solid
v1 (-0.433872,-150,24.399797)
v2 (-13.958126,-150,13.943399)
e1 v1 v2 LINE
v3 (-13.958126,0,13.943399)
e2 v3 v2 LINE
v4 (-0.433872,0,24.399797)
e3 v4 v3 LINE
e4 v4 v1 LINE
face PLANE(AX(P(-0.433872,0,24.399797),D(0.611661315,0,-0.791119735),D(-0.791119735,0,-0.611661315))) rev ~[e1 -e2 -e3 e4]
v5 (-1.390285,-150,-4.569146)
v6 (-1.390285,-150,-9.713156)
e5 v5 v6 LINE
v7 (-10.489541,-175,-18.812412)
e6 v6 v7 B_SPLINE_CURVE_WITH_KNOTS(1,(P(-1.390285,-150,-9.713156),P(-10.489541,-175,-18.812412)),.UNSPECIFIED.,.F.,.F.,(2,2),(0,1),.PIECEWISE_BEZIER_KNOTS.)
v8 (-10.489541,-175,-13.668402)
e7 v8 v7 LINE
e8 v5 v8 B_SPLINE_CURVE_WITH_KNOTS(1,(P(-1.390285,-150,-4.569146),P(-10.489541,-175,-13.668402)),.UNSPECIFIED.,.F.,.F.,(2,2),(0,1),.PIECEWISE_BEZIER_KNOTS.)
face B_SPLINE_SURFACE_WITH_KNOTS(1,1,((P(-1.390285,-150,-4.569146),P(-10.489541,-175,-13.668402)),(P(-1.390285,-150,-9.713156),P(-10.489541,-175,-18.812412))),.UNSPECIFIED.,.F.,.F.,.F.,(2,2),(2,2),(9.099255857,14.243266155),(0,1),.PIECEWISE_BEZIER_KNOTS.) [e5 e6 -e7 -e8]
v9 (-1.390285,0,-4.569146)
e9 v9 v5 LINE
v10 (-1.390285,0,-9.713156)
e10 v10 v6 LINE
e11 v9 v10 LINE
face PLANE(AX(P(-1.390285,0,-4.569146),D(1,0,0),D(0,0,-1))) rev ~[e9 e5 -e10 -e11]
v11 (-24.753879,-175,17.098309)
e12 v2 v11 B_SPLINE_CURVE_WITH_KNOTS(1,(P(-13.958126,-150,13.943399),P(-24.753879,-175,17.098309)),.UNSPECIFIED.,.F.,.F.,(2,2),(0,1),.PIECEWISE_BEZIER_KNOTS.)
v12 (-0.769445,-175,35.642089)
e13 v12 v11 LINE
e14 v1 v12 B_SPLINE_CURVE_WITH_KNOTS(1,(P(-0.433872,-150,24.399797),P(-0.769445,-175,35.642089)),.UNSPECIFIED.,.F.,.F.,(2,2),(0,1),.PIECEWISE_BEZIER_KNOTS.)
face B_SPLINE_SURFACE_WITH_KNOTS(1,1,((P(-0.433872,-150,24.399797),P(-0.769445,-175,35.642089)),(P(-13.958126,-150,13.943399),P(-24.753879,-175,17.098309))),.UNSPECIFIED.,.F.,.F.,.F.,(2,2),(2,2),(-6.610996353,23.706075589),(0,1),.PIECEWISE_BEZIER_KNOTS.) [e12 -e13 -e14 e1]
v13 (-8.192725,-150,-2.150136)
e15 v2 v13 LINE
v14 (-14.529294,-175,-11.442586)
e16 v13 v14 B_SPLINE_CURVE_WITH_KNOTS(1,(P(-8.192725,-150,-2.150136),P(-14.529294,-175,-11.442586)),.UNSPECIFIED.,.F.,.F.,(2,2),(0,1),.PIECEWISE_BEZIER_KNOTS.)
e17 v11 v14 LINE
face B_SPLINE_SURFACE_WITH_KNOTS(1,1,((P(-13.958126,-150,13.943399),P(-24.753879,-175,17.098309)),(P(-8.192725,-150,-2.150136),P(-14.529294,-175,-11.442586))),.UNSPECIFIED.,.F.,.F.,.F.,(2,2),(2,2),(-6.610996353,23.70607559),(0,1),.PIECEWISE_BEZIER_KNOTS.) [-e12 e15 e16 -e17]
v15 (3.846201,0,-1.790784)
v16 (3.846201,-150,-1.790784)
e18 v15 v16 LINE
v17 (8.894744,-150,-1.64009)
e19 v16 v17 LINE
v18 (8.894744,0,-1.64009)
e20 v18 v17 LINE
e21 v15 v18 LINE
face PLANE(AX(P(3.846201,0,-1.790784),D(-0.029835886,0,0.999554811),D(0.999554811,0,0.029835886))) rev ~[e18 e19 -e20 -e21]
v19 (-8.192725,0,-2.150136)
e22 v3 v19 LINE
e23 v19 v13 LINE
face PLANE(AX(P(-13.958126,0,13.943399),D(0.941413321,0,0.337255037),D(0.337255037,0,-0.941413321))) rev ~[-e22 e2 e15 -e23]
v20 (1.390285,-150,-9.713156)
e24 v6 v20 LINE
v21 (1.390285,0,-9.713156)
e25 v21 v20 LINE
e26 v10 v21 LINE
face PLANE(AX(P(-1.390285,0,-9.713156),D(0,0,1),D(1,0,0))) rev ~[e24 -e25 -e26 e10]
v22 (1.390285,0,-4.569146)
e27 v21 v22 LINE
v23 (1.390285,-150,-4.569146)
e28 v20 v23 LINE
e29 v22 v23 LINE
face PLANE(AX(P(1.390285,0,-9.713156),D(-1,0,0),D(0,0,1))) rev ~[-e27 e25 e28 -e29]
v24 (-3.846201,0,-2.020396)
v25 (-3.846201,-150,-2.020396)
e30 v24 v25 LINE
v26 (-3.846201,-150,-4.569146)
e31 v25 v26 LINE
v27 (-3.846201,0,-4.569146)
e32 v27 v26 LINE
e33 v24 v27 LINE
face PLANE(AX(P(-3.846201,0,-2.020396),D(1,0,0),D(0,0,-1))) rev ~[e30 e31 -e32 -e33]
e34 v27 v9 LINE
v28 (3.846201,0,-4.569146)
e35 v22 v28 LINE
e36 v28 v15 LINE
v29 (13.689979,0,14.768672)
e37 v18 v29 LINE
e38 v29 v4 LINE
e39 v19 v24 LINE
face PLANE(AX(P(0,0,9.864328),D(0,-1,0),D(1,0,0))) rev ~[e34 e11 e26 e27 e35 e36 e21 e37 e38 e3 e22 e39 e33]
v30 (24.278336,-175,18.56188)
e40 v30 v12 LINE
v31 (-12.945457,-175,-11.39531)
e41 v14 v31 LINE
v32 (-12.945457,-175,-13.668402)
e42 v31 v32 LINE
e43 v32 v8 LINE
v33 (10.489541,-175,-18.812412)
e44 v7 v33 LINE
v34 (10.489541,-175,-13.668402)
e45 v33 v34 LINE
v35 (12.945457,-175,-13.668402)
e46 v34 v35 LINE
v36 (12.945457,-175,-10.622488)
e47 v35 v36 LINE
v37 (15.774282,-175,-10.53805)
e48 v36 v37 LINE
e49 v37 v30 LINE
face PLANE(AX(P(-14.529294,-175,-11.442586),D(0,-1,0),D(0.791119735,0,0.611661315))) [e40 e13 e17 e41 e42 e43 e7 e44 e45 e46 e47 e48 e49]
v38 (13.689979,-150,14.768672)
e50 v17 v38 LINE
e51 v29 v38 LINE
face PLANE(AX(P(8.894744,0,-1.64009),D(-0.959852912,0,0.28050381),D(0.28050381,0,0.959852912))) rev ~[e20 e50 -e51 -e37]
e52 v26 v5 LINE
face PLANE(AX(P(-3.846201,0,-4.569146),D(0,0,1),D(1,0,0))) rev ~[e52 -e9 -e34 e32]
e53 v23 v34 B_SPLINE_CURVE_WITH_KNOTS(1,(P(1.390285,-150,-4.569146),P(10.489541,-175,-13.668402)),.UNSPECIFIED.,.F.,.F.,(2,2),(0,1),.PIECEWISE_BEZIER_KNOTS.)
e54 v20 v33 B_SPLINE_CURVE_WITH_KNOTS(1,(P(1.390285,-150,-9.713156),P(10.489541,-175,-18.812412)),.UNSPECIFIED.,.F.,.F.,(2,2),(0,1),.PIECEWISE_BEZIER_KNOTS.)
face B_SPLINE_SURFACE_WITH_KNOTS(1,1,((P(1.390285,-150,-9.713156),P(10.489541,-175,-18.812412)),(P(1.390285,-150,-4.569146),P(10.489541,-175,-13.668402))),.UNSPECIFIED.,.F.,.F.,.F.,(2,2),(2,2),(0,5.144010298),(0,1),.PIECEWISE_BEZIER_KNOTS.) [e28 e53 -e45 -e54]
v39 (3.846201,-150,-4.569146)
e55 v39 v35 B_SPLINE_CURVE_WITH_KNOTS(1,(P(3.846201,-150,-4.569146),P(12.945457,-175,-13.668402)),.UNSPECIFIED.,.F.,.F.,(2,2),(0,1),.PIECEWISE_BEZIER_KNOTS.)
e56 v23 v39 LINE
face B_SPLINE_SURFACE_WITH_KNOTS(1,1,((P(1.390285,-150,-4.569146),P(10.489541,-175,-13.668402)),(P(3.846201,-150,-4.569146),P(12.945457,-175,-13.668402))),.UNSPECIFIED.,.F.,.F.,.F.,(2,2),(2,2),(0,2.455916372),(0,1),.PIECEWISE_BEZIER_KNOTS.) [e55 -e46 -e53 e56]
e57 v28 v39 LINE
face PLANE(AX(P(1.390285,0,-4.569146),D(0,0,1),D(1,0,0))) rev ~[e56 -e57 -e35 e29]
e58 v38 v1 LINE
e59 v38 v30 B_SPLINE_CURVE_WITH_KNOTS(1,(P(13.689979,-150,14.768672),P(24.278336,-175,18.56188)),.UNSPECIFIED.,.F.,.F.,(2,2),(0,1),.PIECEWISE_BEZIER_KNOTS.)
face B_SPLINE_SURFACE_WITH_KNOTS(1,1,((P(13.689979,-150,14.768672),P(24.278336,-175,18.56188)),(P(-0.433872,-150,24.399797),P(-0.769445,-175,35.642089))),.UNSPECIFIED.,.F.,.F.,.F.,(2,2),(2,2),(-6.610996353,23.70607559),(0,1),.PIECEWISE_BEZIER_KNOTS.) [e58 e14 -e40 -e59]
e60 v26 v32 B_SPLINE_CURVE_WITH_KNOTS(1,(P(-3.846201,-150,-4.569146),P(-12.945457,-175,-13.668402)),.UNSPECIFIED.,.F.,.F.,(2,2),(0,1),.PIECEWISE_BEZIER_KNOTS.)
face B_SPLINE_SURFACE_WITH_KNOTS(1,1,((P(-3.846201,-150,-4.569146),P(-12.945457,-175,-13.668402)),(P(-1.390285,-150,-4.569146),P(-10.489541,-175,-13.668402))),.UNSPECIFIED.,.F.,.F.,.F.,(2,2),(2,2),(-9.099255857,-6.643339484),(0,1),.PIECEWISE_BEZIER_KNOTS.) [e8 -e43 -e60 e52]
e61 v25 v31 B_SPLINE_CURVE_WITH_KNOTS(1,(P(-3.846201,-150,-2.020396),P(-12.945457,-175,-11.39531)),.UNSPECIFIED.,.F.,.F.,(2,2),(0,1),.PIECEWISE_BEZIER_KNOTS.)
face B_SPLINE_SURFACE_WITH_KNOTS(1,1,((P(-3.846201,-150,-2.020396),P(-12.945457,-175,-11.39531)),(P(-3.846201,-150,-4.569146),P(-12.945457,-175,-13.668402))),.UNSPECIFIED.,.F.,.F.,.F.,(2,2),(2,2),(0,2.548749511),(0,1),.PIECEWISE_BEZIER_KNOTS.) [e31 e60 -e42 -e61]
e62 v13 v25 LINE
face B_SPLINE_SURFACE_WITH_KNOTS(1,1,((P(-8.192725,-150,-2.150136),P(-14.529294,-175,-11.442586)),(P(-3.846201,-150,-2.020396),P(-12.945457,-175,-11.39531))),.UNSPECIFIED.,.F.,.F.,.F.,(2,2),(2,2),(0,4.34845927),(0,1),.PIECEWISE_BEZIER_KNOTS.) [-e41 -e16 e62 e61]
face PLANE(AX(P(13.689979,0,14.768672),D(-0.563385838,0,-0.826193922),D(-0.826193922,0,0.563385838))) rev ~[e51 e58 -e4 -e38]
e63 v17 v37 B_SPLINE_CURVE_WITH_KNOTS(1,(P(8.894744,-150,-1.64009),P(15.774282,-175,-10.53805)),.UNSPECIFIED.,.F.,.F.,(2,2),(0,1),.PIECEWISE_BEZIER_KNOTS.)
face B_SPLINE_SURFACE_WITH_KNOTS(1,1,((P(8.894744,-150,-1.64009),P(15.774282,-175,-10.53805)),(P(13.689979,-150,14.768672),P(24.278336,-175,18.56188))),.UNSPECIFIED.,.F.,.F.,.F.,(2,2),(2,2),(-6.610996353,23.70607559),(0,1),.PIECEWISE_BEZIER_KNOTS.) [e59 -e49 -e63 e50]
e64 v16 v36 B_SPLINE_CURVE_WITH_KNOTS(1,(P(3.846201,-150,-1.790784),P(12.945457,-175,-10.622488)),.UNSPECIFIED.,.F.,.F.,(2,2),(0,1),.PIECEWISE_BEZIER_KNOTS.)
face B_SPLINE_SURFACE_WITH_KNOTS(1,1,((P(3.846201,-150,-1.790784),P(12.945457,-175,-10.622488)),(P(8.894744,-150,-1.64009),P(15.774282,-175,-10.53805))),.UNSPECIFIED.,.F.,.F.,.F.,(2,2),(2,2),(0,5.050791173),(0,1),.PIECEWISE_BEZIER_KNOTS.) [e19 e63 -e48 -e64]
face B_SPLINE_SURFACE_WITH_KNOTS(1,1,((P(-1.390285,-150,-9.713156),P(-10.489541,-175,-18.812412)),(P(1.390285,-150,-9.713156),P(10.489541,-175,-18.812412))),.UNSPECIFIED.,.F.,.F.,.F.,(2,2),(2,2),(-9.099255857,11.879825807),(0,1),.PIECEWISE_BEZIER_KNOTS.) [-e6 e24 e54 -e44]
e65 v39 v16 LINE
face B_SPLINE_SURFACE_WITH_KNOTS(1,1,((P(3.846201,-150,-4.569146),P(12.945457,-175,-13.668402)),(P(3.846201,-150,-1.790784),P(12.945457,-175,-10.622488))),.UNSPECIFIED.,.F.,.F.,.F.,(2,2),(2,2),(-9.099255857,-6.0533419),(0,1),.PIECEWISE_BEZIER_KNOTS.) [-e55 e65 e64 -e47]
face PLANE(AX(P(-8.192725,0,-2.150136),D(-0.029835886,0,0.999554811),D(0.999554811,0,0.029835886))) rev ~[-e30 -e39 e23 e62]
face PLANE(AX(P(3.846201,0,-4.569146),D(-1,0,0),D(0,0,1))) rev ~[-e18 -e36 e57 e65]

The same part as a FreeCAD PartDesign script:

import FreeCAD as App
import Part
import Sketcher
from FreeCAD import Vector

doc = App.newDocument("Part")
body = doc.addObject("PartDesign::Body", "Body")

# Sketch on XZ plane
sketch1 = doc.addObject("Sketcher::SketchObject", "Sketch")
body.addObject(sketch1)
sketch1.AttachmentSupport = (doc.XZ_Plane, [""])
sketch1.MapMode = "FlatFace"
sketch1.addGeometry(Part.LineSegment(Vector(-0.4, 24.4, 0), Vector(-14, 13.9, 0)), False)
sketch1.addGeometry(Part.LineSegment(Vector(-14, 13.9, 0), Vector(-8.2, -2.2, 0)), False)
sketch1.addGeometry(Part.LineSegment(Vector(-8.2, -2.2, 0), Vector(-3.8, -2, 0)), False)
sketch1.addGeometry(Part.LineSegment(Vector(-3.8, -2, 0), Vector(-3.8, -4.6, 0)), False)
sketch1.addGeometry(Part.LineSegment(Vector(-3.8, -4.6, 0), Vector(-1.4, -4.6, 0)), False)
sketch1.addGeometry(Part.LineSegment(Vector(-1.4, -4.6, 0), Vector(-1.4, -9.7, 0)), False)
sketch1.addGeometry(Part.LineSegment(Vector(-1.4, -9.7, 0), Vector(1.4, -9.7, 0)), False)
sketch1.addGeometry(Part.LineSegment(Vector(1.4, -9.7, 0), Vector(1.4, -4.6, 0)), False)
sketch1.addGeometry(Part.LineSegment(Vector(1.4, -4.6, 0), Vector(3.8, -4.6, 0)), False)
sketch1.addGeometry(Part.LineSegment(Vector(3.8, -4.6, 0), Vector(3.8, -1.8, 0)), False)
sketch1.addGeometry(Part.LineSegment(Vector(3.8, -1.8, 0), Vector(8.9, -1.6, 0)), False)
sketch1.addGeometry(Part.LineSegment(Vector(8.9, -1.6, 0), Vector(13.7, 14.8, 0)), False)
sketch1.addGeometry(Part.LineSegment(Vector(13.7, 14.8, 0), Vector(-0.4, 24.4, 0)), False)
sketch1.addConstraint(Sketcher.Constraint("Coincident", 0, 2, 1, 1))
sketch1.addConstraint(Sketcher.Constraint("Coincident", 1, 2, 2, 1))
sketch1.addConstraint(Sketcher.Constraint("Coincident", 2, 2, 3, 1))
sketch1.addConstraint(Sketcher.Constraint("Coincident", 3, 2, 4, 1))
sketch1.addConstraint(Sketcher.Constraint("Coincident", 4, 2, 5, 1))
sketch1.addConstraint(Sketcher.Constraint("Coincident", 5, 2, 6, 1))
sketch1.addConstraint(Sketcher.Constraint("Coincident", 6, 2, 7, 1))
sketch1.addConstraint(Sketcher.Constraint("Coincident", 7, 2, 8, 1))
sketch1.addConstraint(Sketcher.Constraint("Coincident", 8, 2, 9, 1))
sketch1.addConstraint(Sketcher.Constraint("Coincident", 9, 2, 10, 1))
sketch1.addConstraint(Sketcher.Constraint("Coincident", 10, 2, 11, 1))
sketch1.addConstraint(Sketcher.Constraint("Coincident", 11, 2, 12, 1))
sketch1.addConstraint(Sketcher.Constraint("Coincident", 12, 2, 0, 1))
sketch1.addConstraint(Sketcher.Constraint("Vertical", 3))
sketch1.addConstraint(Sketcher.Constraint("Horizontal", 4))
sketch1.addConstraint(Sketcher.Constraint("Vertical", 5))
sketch1.addConstraint(Sketcher.Constraint("Horizontal", 6))
sketch1.addConstraint(Sketcher.Constraint("Vertical", 7))
sketch1.addConstraint(Sketcher.Constraint("Horizontal", 8))
sketch1.addConstraint(Sketcher.Constraint("Vertical", 9))
sketch1.addConstraint(Sketcher.Constraint("Symmetric", 4, 2, 7, 2, -2))
sketch1.addConstraint(Sketcher.Constraint("Parallel", 2, 10))
sketch1.addConstraint(Sketcher.Constraint("Equal", 4, 8))
sketch1.addConstraint(Sketcher.Constraint("Equal", 0, 1))
sketch1.addConstraint(Sketcher.Constraint("Equal", 1, 11))
sketch1.addConstraint(Sketcher.Constraint("Equal", 11, 12))
sketch1.addConstraint(Sketcher.Constraint("DistanceX", 6, 1, 6, 2, 2.78057))
sketch1.addConstraint(Sketcher.Constraint("DistanceY", 3, 2, 3, 1, 2.54875))
sketch1.addConstraint(Sketcher.Constraint("DistanceY", 5, 2, 5, 1, 5.14401))
sketch1.addConstraint(Sketcher.Constraint("DistanceY", 9, 1, 9, 2, 2.778361))
sketch1.addConstraint(Sketcher.Constraint("DistanceY", -1, 1, 0, 2, 13.943399))
sketch1.addConstraint(Sketcher.Constraint("DistanceX", 2, 2, -1, 1, 3.846201))
sketch1.addConstraint(Sketcher.Constraint("DistanceX", 0, 2, 1, 2, 5.765402))
sketch1.addConstraint(Sketcher.Constraint("DistanceY", 0, 2, 12, 2, 10.456399))
sketch1.addConstraint(Sketcher.Constraint("Distance", 0, 17.095079))
sketch1.addConstraint(Sketcher.Constraint("Distance", 2, 4.348459))
sketch1.addConstraint(Sketcher.Constraint("Distance", 10, 5.050791))
sketch1.addConstraint(Sketcher.Constraint("DistanceY", 10, 2, -1, 1, 1.64009))
pad1 = doc.addObject("PartDesign::Pad", "Pad")
body.addObject(pad1)
pad1.Profile = sketch1
pad1.Length = 150

# Sketch on XZ plane
sketch2 = doc.addObject("Sketcher::SketchObject", "Sketch001")
body.addObject(sketch2)
sketch2.AttachmentSupport = (doc.XZ_Plane, [""])
sketch2.MapMode = "FlatFace"
sketch2.AttachmentOffset = App.Placement(Vector(0, 0, 150), App.Rotation())
sketch2.addGeometry(Part.LineSegment(Vector(-8.2, -2.2, 0), Vector(-3.8, -2, 0)), False)
sketch2.addGeometry(Part.LineSegment(Vector(-3.8, -2, 0), Vector(-3.8, -4.6, 0)), False)
sketch2.addGeometry(Part.LineSegment(Vector(-3.8, -4.6, 0), Vector(-1.4, -4.6, 0)), False)
sketch2.addGeometry(Part.LineSegment(Vector(-1.4, -4.6, 0), Vector(-1.4, -9.7, 0)), False)
sketch2.addGeometry(Part.LineSegment(Vector(-1.4, -9.7, 0), Vector(1.4, -9.7, 0)), False)
sketch2.addGeometry(Part.LineSegment(Vector(1.4, -9.7, 0), Vector(1.4, -4.6, 0)), False)
sketch2.addGeometry(Part.LineSegment(Vector(1.4, -4.6, 0), Vector(3.8, -4.6, 0)), False)
sketch2.addGeometry(Part.LineSegment(Vector(3.8, -4.6, 0), Vector(3.8, -1.8, 0)), False)
sketch2.addGeometry(Part.LineSegment(Vector(3.8, -1.8, 0), Vector(8.9, -1.6, 0)), False)
sketch2.addGeometry(Part.LineSegment(Vector(8.9, -1.6, 0), Vector(13.7, 14.8, 0)), False)
sketch2.addGeometry(Part.LineSegment(Vector(13.7, 14.8, 0), Vector(-0.4, 24.4, 0)), False)
sketch2.addGeometry(Part.LineSegment(Vector(-0.4, 24.4, 0), Vector(-14, 13.9, 0)), False)
sketch2.addGeometry(Part.LineSegment(Vector(-14, 13.9, 0), Vector(-8.2, -2.2, 0)), False)
sketch2.addConstraint(Sketcher.Constraint("Coincident", 0, 2, 1, 1))
sketch2.addConstraint(Sketcher.Constraint("Coincident", 1, 2, 2, 1))
sketch2.addConstraint(Sketcher.Constraint("Coincident", 2, 2, 3, 1))
sketch2.addConstraint(Sketcher.Constraint("Coincident", 3, 2, 4, 1))
sketch2.addConstraint(Sketcher.Constraint("Coincident", 4, 2, 5, 1))
sketch2.addConstraint(Sketcher.Constraint("Coincident", 5, 2, 6, 1))
sketch2.addConstraint(Sketcher.Constraint("Coincident", 6, 2, 7, 1))
sketch2.addConstraint(Sketcher.Constraint("Coincident", 7, 2, 8, 1))
sketch2.addConstraint(Sketcher.Constraint("Coincident", 8, 2, 9, 1))
sketch2.addConstraint(Sketcher.Constraint("Coincident", 9, 2, 10, 1))
sketch2.addConstraint(Sketcher.Constraint("Coincident", 10, 2, 11, 1))
sketch2.addConstraint(Sketcher.Constraint("Coincident", 11, 2, 12, 1))
sketch2.addConstraint(Sketcher.Constraint("Coincident", 12, 2, 0, 1))
sketch2.addConstraint(Sketcher.Constraint("Vertical", 1))
sketch2.addConstraint(Sketcher.Constraint("Horizontal", 2))
sketch2.addConstraint(Sketcher.Constraint("Vertical", 3))
sketch2.addConstraint(Sketcher.Constraint("Horizontal", 4))
sketch2.addConstraint(Sketcher.Constraint("Vertical", 5))
sketch2.addConstraint(Sketcher.Constraint("Horizontal", 6))
sketch2.addConstraint(Sketcher.Constraint("Vertical", 7))
sketch2.addConstraint(Sketcher.Constraint("Symmetric", 2, 2, 5, 2, -2))
sketch2.addConstraint(Sketcher.Constraint("Parallel", 0, 8))
sketch2.addConstraint(Sketcher.Constraint("Equal", 2, 6))
sketch2.addConstraint(Sketcher.Constraint("Equal", 9, 10))
sketch2.addConstraint(Sketcher.Constraint("Equal", 10, 11))
sketch2.addConstraint(Sketcher.Constraint("Equal", 11, 12))
sketch2.addConstraint(Sketcher.Constraint("DistanceX", 4, 1, 4, 2, 2.78057))
sketch2.addConstraint(Sketcher.Constraint("DistanceY", 1, 2, 1, 1, 2.54875))
sketch2.addConstraint(Sketcher.Constraint("DistanceY", 3, 2, 3, 1, 5.14401))
sketch2.addConstraint(Sketcher.Constraint("DistanceY", 7, 1, 7, 2, 2.778361))
sketch2.addConstraint(Sketcher.Constraint("DistanceX", 0, 2, -1, 1, 3.846201))
sketch2.addConstraint(Sketcher.Constraint("DistanceY", -1, 1, 11, 2, 13.943399))
sketch2.addConstraint(Sketcher.Constraint("DistanceY", 11, 2, 10, 2, 10.456399))
sketch2.addConstraint(Sketcher.Constraint("Distance", 0, 4.348459))
sketch2.addConstraint(Sketcher.Constraint("Distance", 8, 5.050791))
sketch2.addConstraint(Sketcher.Constraint("Distance", 9, 17.095079))
sketch2.addConstraint(Sketcher.Constraint("DistanceY", 8, 2, -1, 1, 1.64009))
sketch2.addConstraint(Sketcher.Constraint("DistanceX", -1, 1, 9, 2, 13.689979))
pad2 = doc.addObject("PartDesign::Pad", "Pad001")
body.addObject(pad2)
pad2.Profile = sketch2
pad2.Length = 25
pad2.TaperAngle = 20

doc.recompute()
